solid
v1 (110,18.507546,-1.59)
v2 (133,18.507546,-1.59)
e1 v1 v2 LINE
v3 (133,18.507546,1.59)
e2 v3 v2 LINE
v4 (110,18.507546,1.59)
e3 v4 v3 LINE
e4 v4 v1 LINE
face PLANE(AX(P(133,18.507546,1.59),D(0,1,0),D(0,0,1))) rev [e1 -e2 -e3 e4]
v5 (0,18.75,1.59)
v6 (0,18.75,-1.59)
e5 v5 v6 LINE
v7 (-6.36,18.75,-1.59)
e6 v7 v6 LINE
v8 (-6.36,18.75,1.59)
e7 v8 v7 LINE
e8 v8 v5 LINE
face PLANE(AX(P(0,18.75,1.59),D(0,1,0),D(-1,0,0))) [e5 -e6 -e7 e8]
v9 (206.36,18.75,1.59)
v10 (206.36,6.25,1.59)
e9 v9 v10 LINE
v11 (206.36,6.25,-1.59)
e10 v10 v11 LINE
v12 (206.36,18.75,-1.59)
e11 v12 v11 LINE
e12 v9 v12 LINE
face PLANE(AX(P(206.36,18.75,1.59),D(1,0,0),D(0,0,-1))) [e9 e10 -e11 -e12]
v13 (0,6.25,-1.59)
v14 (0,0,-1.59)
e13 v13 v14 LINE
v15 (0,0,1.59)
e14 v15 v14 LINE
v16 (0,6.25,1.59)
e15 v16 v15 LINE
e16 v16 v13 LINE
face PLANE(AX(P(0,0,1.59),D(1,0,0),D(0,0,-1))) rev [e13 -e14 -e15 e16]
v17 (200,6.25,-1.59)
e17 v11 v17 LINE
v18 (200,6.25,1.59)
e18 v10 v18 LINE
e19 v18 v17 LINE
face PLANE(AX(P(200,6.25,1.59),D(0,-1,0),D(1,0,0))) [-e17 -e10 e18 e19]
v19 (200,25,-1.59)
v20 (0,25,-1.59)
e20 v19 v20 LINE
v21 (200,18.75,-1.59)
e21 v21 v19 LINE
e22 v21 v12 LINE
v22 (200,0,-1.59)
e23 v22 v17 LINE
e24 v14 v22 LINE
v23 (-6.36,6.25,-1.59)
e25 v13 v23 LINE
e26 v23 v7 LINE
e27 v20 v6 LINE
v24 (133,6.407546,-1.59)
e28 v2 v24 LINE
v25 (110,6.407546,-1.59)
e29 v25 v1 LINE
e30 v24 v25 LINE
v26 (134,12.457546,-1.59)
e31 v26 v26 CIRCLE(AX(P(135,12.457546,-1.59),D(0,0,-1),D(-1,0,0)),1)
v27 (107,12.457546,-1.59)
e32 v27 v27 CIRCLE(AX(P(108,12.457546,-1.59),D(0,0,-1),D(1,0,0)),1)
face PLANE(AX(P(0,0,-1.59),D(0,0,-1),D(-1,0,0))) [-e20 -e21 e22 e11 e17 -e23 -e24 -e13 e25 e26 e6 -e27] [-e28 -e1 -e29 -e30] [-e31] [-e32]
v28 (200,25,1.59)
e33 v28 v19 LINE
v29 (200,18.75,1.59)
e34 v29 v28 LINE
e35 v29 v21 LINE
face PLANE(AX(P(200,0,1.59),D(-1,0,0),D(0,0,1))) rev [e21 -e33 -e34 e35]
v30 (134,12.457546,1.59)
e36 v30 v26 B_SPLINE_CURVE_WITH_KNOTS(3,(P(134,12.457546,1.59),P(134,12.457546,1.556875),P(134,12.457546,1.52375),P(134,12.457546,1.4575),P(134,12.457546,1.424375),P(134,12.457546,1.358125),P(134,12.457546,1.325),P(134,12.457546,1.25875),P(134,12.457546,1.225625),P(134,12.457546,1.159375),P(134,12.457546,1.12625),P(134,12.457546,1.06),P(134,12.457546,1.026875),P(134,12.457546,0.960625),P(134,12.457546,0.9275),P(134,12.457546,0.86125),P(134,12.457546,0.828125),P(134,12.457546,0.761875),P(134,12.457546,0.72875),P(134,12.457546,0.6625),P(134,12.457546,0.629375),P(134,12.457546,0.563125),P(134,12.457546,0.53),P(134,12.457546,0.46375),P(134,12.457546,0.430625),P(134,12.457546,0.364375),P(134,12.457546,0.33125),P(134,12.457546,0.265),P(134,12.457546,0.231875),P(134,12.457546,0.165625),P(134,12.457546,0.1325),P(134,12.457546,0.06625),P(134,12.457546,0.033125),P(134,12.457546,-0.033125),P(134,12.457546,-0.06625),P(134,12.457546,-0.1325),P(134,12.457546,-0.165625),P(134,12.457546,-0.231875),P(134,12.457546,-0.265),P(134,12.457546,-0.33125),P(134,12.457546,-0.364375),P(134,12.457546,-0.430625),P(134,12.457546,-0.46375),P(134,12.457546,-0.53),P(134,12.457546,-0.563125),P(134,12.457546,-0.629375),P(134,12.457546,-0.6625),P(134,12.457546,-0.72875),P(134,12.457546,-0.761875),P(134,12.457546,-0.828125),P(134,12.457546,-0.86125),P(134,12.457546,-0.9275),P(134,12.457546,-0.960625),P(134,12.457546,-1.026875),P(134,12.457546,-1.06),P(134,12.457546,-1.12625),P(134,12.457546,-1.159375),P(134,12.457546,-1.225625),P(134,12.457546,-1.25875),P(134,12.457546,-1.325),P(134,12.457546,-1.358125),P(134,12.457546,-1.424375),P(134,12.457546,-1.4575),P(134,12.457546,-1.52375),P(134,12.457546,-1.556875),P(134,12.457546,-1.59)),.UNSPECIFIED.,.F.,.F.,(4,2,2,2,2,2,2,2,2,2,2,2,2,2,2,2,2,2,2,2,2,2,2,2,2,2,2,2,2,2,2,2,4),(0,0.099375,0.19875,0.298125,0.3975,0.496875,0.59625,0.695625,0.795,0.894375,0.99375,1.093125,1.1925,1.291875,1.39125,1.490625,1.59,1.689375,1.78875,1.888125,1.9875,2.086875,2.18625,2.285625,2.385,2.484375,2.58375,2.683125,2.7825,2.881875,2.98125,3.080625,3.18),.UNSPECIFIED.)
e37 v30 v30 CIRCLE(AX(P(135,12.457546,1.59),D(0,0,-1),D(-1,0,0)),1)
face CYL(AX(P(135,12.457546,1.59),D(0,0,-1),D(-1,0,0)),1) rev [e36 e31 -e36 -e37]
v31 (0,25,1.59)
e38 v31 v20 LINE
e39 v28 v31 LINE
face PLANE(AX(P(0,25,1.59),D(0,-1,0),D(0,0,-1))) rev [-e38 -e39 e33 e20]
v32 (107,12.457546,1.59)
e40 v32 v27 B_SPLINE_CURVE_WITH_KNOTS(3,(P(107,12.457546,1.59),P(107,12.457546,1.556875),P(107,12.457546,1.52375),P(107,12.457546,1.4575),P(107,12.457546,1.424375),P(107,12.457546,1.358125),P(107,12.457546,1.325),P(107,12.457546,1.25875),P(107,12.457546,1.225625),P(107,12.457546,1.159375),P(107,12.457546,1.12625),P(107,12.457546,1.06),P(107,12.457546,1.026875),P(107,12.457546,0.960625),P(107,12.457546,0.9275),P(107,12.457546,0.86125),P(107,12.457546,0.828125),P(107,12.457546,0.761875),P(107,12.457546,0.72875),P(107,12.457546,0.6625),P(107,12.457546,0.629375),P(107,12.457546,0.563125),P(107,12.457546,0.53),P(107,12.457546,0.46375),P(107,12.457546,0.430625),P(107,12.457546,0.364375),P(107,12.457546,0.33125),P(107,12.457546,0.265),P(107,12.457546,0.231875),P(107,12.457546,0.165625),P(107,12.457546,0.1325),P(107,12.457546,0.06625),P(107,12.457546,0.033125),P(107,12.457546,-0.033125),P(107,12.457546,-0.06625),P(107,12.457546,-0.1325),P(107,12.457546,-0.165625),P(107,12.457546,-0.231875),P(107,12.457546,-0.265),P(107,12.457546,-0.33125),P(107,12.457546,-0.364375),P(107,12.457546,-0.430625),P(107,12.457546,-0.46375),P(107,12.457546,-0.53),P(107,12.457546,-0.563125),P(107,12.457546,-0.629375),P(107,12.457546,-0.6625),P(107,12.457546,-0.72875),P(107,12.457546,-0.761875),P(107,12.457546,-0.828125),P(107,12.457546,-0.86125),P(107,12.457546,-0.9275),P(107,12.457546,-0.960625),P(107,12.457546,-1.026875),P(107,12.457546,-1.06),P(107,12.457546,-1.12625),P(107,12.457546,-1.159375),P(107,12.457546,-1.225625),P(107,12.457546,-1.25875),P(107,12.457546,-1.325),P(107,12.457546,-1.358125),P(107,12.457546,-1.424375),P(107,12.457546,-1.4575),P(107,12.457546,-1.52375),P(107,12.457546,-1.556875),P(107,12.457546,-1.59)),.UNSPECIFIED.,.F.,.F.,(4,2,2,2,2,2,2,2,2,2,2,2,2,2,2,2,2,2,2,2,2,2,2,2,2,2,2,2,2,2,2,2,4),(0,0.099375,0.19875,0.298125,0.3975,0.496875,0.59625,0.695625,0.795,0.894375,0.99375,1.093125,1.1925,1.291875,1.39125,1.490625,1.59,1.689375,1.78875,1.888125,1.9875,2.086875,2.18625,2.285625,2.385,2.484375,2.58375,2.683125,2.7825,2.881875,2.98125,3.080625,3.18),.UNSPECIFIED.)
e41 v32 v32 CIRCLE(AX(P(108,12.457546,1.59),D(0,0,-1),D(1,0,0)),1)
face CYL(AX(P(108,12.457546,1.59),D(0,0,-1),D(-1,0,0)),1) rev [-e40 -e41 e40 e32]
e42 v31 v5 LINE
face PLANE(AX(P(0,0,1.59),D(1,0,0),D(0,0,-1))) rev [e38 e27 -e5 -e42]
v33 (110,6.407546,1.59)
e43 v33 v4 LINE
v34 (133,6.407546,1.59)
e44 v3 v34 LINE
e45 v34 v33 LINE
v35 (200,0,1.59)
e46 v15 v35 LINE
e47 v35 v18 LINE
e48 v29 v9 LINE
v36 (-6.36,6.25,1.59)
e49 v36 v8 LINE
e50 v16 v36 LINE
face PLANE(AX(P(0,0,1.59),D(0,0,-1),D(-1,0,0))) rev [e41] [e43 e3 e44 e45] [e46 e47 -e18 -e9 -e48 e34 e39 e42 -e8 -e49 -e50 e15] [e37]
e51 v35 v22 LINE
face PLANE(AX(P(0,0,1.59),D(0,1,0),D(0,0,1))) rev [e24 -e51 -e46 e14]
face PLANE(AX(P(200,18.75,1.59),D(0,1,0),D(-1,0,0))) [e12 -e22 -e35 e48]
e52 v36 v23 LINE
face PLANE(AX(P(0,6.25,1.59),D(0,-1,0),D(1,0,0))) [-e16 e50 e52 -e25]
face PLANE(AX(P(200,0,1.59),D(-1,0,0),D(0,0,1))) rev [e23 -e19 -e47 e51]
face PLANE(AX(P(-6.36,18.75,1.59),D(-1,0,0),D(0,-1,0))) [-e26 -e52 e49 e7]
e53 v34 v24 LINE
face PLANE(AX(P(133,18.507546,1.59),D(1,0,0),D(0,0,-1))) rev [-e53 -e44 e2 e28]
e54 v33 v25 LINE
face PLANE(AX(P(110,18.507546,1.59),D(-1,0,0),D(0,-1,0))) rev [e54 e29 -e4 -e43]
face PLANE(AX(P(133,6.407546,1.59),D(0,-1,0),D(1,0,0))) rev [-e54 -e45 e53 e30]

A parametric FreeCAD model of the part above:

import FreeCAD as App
import Part
import Sketcher
Q = App.Units.Quantity

doc = App.newDocument("Part")
body = doc.addObject("PartDesign::Body", "Body")

# Sketch on XY plane
sketch1 = body.newObject("Sketcher::SketchObject", "Sketch")
sketch1.AttachmentSupport = (doc.getObject("XY_Plane"), [""])
sketch1.MapMode = "FlatFace"
sketch1.addGeometry([
    Part.LineSegment(App.Vector(0, 25, 0), App.Vector(0, 0, 0)),
    Part.LineSegment(App.Vector(0, 0, 0), App.Vector(200, 0, 0)),
    Part.LineSegment(App.Vector(200, 0, 0), App.Vector(200, 25, 0)),
    Part.LineSegment(App.Vector(200, 25, 0), App.Vector(0, 25, 0)),
], False)
sketch1.addConstraint([
    Sketcher.Constraint("Coincident", 0, 2, 1, 1),
    Sketcher.Constraint("Coincident", 1, 2, 2, 1),
    Sketcher.Constraint("Coincident", 2, 2, 3, 1),
    Sketcher.Constraint("Coincident", 3, 2, 0, 1),
    Sketcher.Constraint("Vertical", 0),
    Sketcher.Constraint("Horizontal", 1),
    Sketcher.Constraint("Vertical", 2),
    Sketcher.Constraint("Horizontal", 3),
    Sketcher.Constraint("Coincident", 0, 2, -1, 1),
    Sketcher.Constraint("DistanceX", 1, 1, 1, 2, Q("200 mm")),
    Sketcher.Constraint("DistanceY", 0, 2, 0, 1, Q("25 mm")),
])
pad1 = body.newObject("PartDesign::Pad", "Pad")
pad1.Profile = sketch1
pad1.Length = 3.18
pad1.Midplane = True

# Sketch on XY plane
sketch2 = body.newObject("Sketcher::SketchObject", "Sketch001")
sketch2.AttachmentSupport = (doc.getObject("XY_Plane"), [""])
sketch2.MapMode = "FlatFace"
sketch2.AttachmentOffset = App.Placement(App.Vector(0, 0, -1.59), App.Rotation())
sketch2.addGeometry([
    Part.Circle(App.Vector(135, 12.5, 0), App.Vector(0, 0, 1), 1),  # 0
    Part.Circle(App.Vector(108, 12.5, 0), App.Vector(0, 0, 1), 1),  # 1
    Part.LineSegment(App.Vector(133, 18.5, 0), App.Vector(133, 6.4, 0)),  # 2
    Part.LineSegment(App.Vector(133, 6.4, 0), App.Vector(110, 6.4, 0)),  # 3
    Part.LineSegment(App.Vector(110, 6.4, 0), App.Vector(110, 18.5, 0)),  # 4
    Part.LineSegment(App.Vector(110, 18.5, 0), App.Vector(133, 18.5, 0)),  # 5
], False)
sketch2.addConstraint([
    Sketcher.Constraint("Coincident", 2, 2, 3, 1),
    Sketcher.Constraint("Coincident", 3, 2, 4, 1),
    Sketcher.Constraint("Coincident", 4, 2, 5, 1),
    Sketcher.Constraint("Coincident", 5, 2, 2, 1),
    Sketcher.Constraint("Vertical", 2),
    Sketcher.Constraint("Horizontal", 3),
    Sketcher.Constraint("Vertical", 4),
    Sketcher.Constraint("Horizontal", 5),
    Sketcher.Constraint("Equal", 0, 1),
    Sketcher.Constraint("Horizontal", 0, 3, 1, 3),
    Sketcher.Constraint("Diameter", 0, Q("2 mm")),
    Sketcher.Constraint("DistanceX", 3, 2, 3, 1, Q("23 mm")),
    Sketcher.Constraint("DistanceY", 2, 2, 2, 1, Q("12.1 mm")),
    Sketcher.Constraint("DistanceX", -1, 1, 0, 3, Q("135 mm")),
    Sketcher.Constraint("DistanceX", -1, 1, 1, 3, Q("108 mm")),
    Sketcher.Constraint("DistanceX", -1, 1, 2, 2, Q("133 mm")),
    Sketcher.Constraint("DistanceY", 2, 2, 0, 3, Q("6.05 mm")),
    Sketcher.Constraint("DistanceY", -1, 1, 0, 3, Q("12.457546 mm")),
])
pocket1 = body.newObject("PartDesign::Pocket", "Pocket")
pocket1.Profile = sketch2
pocket1.Length = 3.18
pocket1.Reversed = True

# Sketch on XY plane
sketch3 = body.newObject("Sketcher::SketchObject", "Sketch002")
sketch3.AttachmentSupport = (doc.getObject("XY_Plane"), [""])
sketch3.MapMode = "FlatFace"
sketch3.AttachmentOffset = App.Placement(App.Vector(0, 0, -1.59), App.Rotation())
sketch3.addGeometry([
    Part.LineSegment(App.Vector(206, 19, 0), App.Vector(206, 6, 0)),  # 0
    Part.LineSegment(App.Vector(206, 6, 0), App.Vector(200, 6, 0)),  # 1
    Part.LineSegment(App.Vector(200, 6, 0), App.Vector(200, 19, 0)),  # 2
    Part.LineSegment(App.Vector(200, 19, 0), App.Vector(206, 19, 0)),  # 3
    Part.LineSegment(App.Vector(0, 19, 0), App.Vector(0, 6, 0)),  # 4
    Part.LineSegment(App.Vector(0, 6, 0), App.Vector(-6, 6, 0)),  # 5
    Part.LineSegment(App.Vector(-6, 6, 0), App.Vector(-6, 19, 0)),  # 6
    Part.LineSegment(App.Vector(-6, 19, 0), App.Vector(0, 19, 0)),  # 7
], False)
sketch3.addConstraint([
    Sketcher.Constraint("Coincident", 0, 2, 1, 1),
    Sketcher.Constraint("Coincident", 1, 2, 2, 1),
    Sketcher.Constraint("Coincident", 2, 2, 3, 1),
    Sketcher.Constraint("Coincident", 3, 2, 0, 1),
    Sketcher.Constraint("Coincident", 4, 2, 5, 1),
    Sketcher.Constraint("Coincident", 5, 2, 6, 1),
    Sketcher.Constraint("Coincident", 6, 2, 7, 1),
    Sketcher.Constraint("Coincident", 7, 2, 4, 1),
    Sketcher.Constraint("Vertical", 0),
    Sketcher.Constraint("Horizontal", 1),
    Sketcher.Constraint("Vertical", 2),
    Sketcher.Constraint("Horizontal", 3),
    Sketcher.Constraint("Vertical", 4),
    Sketcher.Constraint("Horizontal", 5),
    Sketcher.Constraint("Vertical", 6),
    Sketcher.Constraint("Horizontal", 7),
    Sketcher.Constraint("PointOnObject", 4, 2, -2),
    Sketcher.Constraint("Horizontal", 1, 2, 4, 2),
    Sketcher.Constraint("Horizontal", 3, 2, 6, 2),
    Sketcher.Constraint("Equal", 3, 5),
    Sketcher.Constraint("DistanceY", 0, 2, 0, 1, Q("12.5 mm")),
    Sketcher.Constraint("DistanceX", -1, 1, 1, 2, Q("200 mm")),
    Sketcher.Constraint("DistanceX", 1, 2, 1, 1, Q("6.36 mm")),
    Sketcher.Constraint("DistanceY", -1, 1, 0, 2, Q("6.25 mm")),
])
pad2 = body.newObject("PartDesign::Pad", "Pad001")
pad2.Profile = sketch3
pad2.Length = 3.18

doc.recompute()
